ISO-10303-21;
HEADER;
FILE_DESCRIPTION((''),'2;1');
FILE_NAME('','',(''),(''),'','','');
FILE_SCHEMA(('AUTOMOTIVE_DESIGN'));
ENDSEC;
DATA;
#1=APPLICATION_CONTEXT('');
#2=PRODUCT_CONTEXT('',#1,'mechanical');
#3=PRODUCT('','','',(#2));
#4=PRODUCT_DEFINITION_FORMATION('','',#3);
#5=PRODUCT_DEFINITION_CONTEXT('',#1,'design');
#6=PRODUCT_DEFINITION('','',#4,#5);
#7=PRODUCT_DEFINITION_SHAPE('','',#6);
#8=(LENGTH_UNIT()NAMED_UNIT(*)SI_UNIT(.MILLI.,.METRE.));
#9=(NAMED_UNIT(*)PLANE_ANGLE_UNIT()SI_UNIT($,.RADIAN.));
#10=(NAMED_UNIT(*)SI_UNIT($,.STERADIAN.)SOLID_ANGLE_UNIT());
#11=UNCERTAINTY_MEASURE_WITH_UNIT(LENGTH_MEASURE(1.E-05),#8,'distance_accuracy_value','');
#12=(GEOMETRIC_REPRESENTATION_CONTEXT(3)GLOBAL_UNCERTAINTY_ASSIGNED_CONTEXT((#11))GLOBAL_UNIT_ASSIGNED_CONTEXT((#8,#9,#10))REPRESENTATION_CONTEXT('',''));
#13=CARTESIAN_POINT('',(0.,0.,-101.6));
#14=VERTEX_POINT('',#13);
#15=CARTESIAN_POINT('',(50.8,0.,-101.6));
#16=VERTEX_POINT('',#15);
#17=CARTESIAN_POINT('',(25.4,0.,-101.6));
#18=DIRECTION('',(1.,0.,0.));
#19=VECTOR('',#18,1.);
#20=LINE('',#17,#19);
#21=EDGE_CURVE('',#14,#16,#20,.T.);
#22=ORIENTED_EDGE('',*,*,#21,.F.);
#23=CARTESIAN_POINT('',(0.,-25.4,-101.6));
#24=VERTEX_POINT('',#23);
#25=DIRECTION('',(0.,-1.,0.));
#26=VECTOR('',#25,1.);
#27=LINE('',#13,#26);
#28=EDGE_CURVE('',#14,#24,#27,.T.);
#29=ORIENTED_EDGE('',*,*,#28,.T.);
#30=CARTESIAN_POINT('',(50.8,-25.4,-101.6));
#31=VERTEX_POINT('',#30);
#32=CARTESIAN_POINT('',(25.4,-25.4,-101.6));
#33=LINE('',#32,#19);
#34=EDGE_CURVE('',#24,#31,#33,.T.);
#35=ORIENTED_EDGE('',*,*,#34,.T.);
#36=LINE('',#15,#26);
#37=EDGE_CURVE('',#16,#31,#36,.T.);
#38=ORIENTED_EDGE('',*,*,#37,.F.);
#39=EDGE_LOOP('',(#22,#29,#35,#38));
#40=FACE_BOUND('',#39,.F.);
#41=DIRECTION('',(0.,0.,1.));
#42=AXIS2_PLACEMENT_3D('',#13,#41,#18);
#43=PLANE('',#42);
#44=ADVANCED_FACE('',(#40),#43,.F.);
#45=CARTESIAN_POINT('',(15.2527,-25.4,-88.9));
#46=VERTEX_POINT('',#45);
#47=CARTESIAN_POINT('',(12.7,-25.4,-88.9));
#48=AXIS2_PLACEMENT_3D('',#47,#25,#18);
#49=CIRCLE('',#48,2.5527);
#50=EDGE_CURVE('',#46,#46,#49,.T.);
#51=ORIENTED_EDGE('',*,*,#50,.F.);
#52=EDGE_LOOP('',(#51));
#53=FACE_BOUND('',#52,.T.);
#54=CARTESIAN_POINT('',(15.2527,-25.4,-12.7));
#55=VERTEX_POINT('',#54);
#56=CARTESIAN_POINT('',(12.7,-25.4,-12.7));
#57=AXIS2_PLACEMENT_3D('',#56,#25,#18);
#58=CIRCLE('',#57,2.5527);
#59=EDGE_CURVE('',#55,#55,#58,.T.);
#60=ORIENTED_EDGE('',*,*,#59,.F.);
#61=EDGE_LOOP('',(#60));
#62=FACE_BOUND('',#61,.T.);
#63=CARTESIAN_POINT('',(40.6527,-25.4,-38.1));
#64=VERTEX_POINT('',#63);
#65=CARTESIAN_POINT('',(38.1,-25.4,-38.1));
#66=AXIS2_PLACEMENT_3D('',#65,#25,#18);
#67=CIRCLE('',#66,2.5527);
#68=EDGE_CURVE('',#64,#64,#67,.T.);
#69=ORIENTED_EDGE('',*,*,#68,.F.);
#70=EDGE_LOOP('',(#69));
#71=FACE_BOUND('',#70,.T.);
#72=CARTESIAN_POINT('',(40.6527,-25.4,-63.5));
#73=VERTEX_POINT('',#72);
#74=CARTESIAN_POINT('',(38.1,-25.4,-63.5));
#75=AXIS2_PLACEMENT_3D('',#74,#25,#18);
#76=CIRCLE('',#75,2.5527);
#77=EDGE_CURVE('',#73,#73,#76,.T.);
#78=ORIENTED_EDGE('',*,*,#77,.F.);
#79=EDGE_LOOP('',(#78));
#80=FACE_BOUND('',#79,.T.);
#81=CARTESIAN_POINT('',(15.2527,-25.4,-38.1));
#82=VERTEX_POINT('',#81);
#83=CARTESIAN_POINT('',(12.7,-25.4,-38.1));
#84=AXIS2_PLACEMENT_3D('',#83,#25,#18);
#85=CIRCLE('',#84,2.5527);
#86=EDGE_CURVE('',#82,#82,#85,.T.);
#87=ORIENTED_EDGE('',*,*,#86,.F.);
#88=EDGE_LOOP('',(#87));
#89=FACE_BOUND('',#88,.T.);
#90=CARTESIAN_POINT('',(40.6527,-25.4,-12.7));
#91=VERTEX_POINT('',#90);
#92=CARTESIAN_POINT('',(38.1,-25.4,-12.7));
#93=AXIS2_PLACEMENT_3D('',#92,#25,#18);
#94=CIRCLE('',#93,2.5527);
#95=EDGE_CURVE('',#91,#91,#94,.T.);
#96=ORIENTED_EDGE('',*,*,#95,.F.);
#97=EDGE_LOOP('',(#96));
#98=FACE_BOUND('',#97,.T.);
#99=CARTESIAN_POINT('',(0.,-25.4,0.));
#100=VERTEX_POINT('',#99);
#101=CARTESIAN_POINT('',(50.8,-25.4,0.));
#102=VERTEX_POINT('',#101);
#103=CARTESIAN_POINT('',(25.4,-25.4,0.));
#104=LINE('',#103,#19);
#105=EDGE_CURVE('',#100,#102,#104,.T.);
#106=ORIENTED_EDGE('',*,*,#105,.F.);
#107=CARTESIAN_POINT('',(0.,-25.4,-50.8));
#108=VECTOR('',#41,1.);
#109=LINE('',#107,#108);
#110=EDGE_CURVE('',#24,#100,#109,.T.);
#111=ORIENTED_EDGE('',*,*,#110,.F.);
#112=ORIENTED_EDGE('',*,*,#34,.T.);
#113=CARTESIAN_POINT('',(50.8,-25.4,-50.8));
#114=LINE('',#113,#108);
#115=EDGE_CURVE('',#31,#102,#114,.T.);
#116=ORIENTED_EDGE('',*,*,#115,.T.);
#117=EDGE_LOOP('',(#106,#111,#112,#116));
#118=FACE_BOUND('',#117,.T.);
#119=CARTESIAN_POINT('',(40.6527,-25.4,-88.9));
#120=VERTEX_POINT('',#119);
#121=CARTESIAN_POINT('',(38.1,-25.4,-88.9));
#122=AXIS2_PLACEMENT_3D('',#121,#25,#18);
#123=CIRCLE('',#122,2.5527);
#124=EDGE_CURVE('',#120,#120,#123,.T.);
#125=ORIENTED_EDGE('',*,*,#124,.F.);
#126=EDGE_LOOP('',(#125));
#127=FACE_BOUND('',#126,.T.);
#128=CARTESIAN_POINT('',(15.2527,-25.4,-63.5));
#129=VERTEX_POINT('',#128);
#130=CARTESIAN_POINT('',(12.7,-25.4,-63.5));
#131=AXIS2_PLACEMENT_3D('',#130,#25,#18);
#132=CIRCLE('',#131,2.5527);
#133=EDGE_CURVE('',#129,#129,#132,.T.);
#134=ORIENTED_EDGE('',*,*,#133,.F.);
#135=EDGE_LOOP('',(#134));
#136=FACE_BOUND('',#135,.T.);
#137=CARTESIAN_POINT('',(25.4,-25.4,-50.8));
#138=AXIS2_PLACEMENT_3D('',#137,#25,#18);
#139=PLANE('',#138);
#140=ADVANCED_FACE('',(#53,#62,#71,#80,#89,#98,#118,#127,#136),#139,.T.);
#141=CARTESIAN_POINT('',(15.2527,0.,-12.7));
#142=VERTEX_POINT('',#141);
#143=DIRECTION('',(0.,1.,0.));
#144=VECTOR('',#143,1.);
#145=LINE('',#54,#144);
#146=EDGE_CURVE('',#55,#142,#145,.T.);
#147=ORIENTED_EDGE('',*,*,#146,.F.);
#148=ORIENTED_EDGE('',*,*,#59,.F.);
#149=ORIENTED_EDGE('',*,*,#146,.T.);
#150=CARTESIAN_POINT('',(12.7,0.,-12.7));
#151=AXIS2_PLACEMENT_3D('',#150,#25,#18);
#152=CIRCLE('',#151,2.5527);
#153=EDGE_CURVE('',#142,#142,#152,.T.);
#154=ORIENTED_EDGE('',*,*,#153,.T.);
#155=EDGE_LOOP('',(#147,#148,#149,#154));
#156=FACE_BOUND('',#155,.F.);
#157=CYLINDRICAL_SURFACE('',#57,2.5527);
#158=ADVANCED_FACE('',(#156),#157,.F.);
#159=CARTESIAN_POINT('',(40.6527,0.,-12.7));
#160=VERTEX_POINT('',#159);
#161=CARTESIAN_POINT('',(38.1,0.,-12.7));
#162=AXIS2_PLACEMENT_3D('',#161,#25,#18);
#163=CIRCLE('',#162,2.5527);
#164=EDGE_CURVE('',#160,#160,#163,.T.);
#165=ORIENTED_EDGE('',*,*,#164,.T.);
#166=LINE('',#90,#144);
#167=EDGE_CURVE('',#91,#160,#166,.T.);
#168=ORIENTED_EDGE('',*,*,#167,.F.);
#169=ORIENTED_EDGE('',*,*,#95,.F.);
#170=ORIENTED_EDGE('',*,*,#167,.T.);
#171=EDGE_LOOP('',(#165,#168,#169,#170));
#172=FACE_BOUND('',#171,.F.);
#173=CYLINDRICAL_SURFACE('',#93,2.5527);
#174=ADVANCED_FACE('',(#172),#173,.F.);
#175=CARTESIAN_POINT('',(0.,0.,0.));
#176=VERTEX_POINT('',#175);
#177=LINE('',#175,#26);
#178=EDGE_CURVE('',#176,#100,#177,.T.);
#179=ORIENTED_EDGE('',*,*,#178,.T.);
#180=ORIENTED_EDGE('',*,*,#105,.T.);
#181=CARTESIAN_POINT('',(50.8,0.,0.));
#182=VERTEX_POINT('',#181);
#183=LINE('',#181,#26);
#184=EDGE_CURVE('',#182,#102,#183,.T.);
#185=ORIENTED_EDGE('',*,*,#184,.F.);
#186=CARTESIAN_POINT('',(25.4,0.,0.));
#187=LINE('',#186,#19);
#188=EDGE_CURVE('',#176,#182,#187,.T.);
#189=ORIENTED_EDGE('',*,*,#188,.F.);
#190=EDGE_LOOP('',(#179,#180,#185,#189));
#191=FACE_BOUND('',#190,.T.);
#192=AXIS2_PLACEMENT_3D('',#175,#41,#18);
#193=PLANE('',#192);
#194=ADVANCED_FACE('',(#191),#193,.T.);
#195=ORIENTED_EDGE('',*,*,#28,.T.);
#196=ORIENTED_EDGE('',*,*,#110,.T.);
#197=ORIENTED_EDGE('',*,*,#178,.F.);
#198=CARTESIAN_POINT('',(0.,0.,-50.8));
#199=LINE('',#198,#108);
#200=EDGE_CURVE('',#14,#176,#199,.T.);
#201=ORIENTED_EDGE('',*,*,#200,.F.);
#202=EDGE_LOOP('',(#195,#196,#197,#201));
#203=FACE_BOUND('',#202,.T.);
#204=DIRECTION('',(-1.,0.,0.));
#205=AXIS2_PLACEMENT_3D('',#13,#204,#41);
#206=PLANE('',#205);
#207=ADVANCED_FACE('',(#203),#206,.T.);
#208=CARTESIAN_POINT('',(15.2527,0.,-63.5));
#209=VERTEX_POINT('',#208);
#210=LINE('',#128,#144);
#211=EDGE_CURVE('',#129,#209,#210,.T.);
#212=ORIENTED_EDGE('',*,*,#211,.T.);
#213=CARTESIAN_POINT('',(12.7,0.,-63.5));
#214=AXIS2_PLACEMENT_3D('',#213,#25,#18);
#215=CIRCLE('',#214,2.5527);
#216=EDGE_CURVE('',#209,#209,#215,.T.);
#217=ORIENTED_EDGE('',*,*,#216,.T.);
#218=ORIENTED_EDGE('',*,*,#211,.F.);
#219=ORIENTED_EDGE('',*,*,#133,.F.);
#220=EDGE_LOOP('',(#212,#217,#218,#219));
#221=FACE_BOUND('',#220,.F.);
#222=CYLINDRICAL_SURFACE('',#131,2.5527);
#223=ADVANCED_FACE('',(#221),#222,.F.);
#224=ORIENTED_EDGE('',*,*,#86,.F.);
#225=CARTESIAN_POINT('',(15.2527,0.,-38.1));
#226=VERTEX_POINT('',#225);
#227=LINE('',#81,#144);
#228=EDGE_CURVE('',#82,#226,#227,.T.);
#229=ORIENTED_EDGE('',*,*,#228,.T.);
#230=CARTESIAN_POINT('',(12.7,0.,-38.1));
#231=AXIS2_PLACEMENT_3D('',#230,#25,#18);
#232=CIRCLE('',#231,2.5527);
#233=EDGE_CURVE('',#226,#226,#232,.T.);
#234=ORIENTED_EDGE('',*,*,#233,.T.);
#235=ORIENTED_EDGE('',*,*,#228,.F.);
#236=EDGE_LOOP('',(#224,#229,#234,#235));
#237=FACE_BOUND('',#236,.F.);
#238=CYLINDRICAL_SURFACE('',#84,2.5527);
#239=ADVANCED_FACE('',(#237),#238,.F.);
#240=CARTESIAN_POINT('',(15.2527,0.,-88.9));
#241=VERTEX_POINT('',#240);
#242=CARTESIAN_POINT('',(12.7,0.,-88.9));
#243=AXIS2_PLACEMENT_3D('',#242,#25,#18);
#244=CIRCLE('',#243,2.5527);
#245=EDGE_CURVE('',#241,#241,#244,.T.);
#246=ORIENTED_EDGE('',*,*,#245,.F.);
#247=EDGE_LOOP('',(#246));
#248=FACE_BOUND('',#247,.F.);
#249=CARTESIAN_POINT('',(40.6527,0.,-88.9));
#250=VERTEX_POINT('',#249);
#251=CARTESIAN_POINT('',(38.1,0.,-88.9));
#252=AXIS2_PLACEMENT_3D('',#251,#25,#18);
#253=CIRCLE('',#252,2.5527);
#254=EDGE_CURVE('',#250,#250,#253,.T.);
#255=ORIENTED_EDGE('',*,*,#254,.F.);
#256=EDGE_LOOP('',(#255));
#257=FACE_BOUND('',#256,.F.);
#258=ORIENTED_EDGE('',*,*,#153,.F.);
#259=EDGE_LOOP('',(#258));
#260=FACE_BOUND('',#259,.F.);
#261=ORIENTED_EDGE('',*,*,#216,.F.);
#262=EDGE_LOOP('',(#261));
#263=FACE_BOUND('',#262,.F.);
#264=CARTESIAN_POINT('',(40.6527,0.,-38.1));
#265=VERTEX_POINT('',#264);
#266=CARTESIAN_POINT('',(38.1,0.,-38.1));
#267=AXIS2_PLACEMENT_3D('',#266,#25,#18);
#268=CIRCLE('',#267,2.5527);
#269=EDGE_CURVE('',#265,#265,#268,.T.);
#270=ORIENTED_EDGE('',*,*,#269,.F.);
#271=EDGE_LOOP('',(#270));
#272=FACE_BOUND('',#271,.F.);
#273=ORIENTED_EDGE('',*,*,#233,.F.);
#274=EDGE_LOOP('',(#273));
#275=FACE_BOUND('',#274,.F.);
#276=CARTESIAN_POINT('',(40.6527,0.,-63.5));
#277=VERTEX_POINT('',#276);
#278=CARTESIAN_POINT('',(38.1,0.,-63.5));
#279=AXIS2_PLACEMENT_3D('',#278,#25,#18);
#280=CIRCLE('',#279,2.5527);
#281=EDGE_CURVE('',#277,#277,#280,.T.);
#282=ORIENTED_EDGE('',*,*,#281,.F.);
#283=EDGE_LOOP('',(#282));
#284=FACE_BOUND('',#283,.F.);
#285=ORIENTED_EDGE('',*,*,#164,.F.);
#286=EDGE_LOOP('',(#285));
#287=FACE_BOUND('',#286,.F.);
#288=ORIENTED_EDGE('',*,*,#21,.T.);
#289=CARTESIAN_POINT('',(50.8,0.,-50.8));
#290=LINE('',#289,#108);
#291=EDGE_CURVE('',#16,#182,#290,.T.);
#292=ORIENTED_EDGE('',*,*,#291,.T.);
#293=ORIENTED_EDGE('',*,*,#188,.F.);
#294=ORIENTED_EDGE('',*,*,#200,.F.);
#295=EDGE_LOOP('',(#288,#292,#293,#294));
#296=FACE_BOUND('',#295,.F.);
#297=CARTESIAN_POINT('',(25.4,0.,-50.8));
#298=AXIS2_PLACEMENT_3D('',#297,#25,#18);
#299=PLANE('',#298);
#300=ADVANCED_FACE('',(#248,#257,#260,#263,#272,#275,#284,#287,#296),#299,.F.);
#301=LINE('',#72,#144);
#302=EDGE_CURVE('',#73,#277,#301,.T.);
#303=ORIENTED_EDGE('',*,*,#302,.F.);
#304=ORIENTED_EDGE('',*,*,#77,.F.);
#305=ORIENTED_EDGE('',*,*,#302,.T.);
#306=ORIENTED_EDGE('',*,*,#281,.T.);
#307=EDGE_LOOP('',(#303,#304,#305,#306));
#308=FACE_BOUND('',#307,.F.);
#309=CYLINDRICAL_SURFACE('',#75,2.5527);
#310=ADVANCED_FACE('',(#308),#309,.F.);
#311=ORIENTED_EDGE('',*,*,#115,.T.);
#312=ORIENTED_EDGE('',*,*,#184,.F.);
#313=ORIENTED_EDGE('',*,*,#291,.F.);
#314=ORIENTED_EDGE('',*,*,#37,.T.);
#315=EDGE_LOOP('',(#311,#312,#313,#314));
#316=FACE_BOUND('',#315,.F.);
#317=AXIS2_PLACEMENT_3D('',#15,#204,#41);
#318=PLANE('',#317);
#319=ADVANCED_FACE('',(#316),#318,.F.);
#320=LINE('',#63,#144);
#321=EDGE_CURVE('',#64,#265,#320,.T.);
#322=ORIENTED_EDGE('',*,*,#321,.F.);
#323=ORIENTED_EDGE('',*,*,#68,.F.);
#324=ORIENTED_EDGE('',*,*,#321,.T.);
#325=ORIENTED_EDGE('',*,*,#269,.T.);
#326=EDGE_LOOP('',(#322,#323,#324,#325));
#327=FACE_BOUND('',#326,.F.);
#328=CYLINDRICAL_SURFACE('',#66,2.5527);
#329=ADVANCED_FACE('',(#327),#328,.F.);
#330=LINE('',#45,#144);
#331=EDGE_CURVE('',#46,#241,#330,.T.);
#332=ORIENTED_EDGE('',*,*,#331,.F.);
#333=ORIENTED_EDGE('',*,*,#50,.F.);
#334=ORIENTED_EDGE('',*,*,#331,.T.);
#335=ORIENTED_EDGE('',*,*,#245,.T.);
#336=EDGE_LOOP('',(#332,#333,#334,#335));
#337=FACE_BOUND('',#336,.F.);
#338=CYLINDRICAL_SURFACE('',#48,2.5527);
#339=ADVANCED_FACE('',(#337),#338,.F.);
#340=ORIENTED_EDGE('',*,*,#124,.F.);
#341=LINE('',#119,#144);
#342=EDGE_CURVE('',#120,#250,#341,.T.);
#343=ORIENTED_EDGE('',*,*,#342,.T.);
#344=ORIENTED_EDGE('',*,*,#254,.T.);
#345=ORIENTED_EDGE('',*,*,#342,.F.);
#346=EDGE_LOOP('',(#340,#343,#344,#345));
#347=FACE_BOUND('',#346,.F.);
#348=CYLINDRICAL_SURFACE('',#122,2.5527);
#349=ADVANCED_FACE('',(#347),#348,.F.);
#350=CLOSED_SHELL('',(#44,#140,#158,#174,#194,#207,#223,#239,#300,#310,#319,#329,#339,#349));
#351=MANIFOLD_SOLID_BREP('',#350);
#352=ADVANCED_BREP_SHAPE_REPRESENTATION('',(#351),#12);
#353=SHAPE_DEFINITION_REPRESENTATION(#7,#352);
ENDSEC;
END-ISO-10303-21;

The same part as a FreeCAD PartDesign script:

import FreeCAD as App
import Part
import Sketcher
Q = App.Units.Quantity

doc = App.newDocument("Part")
params = doc.addObject("Spreadsheet::Sheet", "Params")
for row, (alias, value) in enumerate([
    ("sketch1_width", "2 in"),
    ("sketch1_height", "4 in"),
    ("pad1_length", "1 in"),
    ("sketch2_diameter", "0.201 in"),
    ("pocket1_length", "1 in"),
], start=1):
    params.set(f"A{row}", alias)
    params.set(f"B{row}", "=" + value)
    params.setAlias(f"B{row}", alias)

body = doc.addObject("PartDesign::Body", "Body")

# Sketch on XZ plane
sketch1 = body.newObject("Sketcher::SketchObject", "Sketch")
sketch1.AttachmentSupport = (doc.getObject("XZ_Plane"), [""])
sketch1.MapMode = "FlatFace"
sketch1.addGeometry([
    Part.LineSegment(App.Vector(0, 0, 0), App.Vector(0, -102, 0)),
    Part.LineSegment(App.Vector(0, -102, 0), App.Vector(51, -102, 0)),
    Part.LineSegment(App.Vector(51, -102, 0), App.Vector(51, 0, 0)),
    Part.LineSegment(App.Vector(51, 0, 0), App.Vector(0, 0, 0)),
], False)
sketch1.addConstraint([
    Sketcher.Constraint("Coincident", 0, 2, 1, 1),
    Sketcher.Constraint("Coincident", 1, 2, 2, 1),
    Sketcher.Constraint("Coincident", 2, 2, 3, 1),
    Sketcher.Constraint("Coincident", 3, 2, 0, 1),
    Sketcher.Constraint("Vertical", 0),
    Sketcher.Constraint("Horizontal", 1),
    Sketcher.Constraint("Vertical", 2),
    Sketcher.Constraint("Horizontal", 3),
    Sketcher.Constraint("Coincident", 3, 2, -1, 1),
    Sketcher.Constraint("DistanceX", 1, 1, 1, 2, Q("2 in")),
    Sketcher.Constraint("DistanceY", 0, 2, 0, 1, Q("4 in")),
])
sketch1.setExpression("Constraints[9]", "Params.sketch1_width")
sketch1.setExpression("Constraints[10]", "Params.sketch1_height")
pad1 = body.newObject("PartDesign::Pad", "Pad")
pad1.Profile = sketch1
pad1.setExpression("Length", "Params.pad1_length")

# Sketch on XZ plane
sketch2 = body.newObject("Sketcher::SketchObject", "Sketch001")
sketch2.AttachmentSupport = (doc.getObject("XZ_Plane"), [""])
sketch2.MapMode = "FlatFace"
sketch2.AttachmentOffset = App.Placement(App.Vector(0, 0, 1 * 25.4), App.Rotation())
sketch2.addGeometry([
    Part.Circle(App.Vector(12.7, -12.7, 0), App.Vector(0, 0, 1), 2.6),  # 0
    Part.Circle(App.Vector(12.7, -38.1, 0), App.Vector(0, 0, 1), 2.6),  # 1
    Part.Circle(App.Vector(12.7, -63.5, 0), App.Vector(0, 0, 1), 2.6),  # 2
    Part.Circle(App.Vector(12.7, -88.9, 0), App.Vector(0, 0, 1), 2.6),  # 3
    Part.Circle(App.Vector(38.1, -12.7, 0), App.Vector(0, 0, 1), 2.6),  # 4
    Part.Circle(App.Vector(38.1, -38.1, 0), App.Vector(0, 0, 1), 2.6),  # 5
    Part.Circle(App.Vector(38.1, -63.5, 0), App.Vector(0, 0, 1), 2.6),  # 6
    Part.Circle(App.Vector(38.1, -88.9, 0), App.Vector(0, 0, 1), 2.6),  # 7
    Part.Circle(App.Vector(63.5, -12.7, 0), App.Vector(0, 0, 1), 2.6),  # 8
    Part.Circle(App.Vector(63.5, -38.1, 0), App.Vector(0, 0, 1), 2.6),  # 9
    Part.Circle(App.Vector(63.5, -63.5, 0), App.Vector(0, 0, 1), 2.6),  # 10
    Part.Circle(App.Vector(63.5, -88.9, 0), App.Vector(0, 0, 1), 2.6),  # 11
], False)
sketch2.addConstraint([
    Sketcher.Constraint("Equal", 0, 1),
    Sketcher.Constraint("Equal", 1, 2),
    Sketcher.Constraint("Equal", 2, 3),
    Sketcher.Constraint("Equal", 3, 4),
    Sketcher.Constraint("Equal", 4, 5),
    Sketcher.Constraint("Equal", 5, 6),
    Sketcher.Constraint("Equal", 6, 7),
    Sketcher.Constraint("Equal", 7, 8),
    Sketcher.Constraint("Equal", 8, 9),
    Sketcher.Constraint("Equal", 9, 10),
    Sketcher.Constraint("Equal", 10, 11),
    Sketcher.Constraint("Horizontal", 0, 3, 4, 3),
    Sketcher.Constraint("Horizontal", 1, 3, 5, 3),
    Sketcher.Constraint("Horizontal", 2, 3, 6, 3),
    Sketcher.Constraint("Horizontal", 3, 3, 7, 3),
    Sketcher.Constraint("Horizontal", 4, 3, 8, 3),
    Sketcher.Constraint("Horizontal", 5, 3, 9, 3),
    Sketcher.Constraint("Horizontal", 6, 3, 10, 3),
    Sketcher.Constraint("Horizontal", 7, 3, 11, 3),
    Sketcher.Constraint("Vertical", 0, 3, 1, 3),
    Sketcher.Constraint("Vertical", 1, 3, 2, 3),
    Sketcher.Constraint("Vertical", 2, 3, 3, 3),
    Sketcher.Constraint("Vertical", 4, 3, 5, 3),
    Sketcher.Constraint("Vertical", 5, 3, 6, 3),
    Sketcher.Constraint("Vertical", 6, 3, 7, 3),
    Sketcher.Constraint("Vertical", 8, 3, 9, 3),
    Sketcher.Constraint("Vertical", 9, 3, 10, 3),
    Sketcher.Constraint("Vertical", 10, 3, 11, 3),
    Sketcher.Constraint("Diameter", 0, Q("0.201 in")),
    Sketcher.Constraint("DistanceY", 1, 3, 0, 3, Q("1 in")),
    Sketcher.Constraint("DistanceY", 2, 3, 1, 3, Q("1 in")),
    Sketcher.Constraint("DistanceY", 3, 3, 2, 3, Q("1 in")),
    Sketcher.Constraint("DistanceX", 0, 3, 4, 3, Q("1 in")),
    Sketcher.Constraint("DistanceX", 4, 3, 8, 3, Q("1 in")),
    Sketcher.Constraint("DistanceX", -1, 1, 0, 3, Q("0.5 in")),
    Sketcher.Constraint("DistanceY", 0, 3, -1, 1, Q("0.5 in")),
])
sketch2.setExpression("Constraints[28]", "Params.sketch2_diameter")
pocket1 = body.newObject("PartDesign::Pocket", "Pocket")
pocket1.Profile = sketch2
pocket1.setExpression("Length", "Params.pocket1_length")

doc.recompute()
